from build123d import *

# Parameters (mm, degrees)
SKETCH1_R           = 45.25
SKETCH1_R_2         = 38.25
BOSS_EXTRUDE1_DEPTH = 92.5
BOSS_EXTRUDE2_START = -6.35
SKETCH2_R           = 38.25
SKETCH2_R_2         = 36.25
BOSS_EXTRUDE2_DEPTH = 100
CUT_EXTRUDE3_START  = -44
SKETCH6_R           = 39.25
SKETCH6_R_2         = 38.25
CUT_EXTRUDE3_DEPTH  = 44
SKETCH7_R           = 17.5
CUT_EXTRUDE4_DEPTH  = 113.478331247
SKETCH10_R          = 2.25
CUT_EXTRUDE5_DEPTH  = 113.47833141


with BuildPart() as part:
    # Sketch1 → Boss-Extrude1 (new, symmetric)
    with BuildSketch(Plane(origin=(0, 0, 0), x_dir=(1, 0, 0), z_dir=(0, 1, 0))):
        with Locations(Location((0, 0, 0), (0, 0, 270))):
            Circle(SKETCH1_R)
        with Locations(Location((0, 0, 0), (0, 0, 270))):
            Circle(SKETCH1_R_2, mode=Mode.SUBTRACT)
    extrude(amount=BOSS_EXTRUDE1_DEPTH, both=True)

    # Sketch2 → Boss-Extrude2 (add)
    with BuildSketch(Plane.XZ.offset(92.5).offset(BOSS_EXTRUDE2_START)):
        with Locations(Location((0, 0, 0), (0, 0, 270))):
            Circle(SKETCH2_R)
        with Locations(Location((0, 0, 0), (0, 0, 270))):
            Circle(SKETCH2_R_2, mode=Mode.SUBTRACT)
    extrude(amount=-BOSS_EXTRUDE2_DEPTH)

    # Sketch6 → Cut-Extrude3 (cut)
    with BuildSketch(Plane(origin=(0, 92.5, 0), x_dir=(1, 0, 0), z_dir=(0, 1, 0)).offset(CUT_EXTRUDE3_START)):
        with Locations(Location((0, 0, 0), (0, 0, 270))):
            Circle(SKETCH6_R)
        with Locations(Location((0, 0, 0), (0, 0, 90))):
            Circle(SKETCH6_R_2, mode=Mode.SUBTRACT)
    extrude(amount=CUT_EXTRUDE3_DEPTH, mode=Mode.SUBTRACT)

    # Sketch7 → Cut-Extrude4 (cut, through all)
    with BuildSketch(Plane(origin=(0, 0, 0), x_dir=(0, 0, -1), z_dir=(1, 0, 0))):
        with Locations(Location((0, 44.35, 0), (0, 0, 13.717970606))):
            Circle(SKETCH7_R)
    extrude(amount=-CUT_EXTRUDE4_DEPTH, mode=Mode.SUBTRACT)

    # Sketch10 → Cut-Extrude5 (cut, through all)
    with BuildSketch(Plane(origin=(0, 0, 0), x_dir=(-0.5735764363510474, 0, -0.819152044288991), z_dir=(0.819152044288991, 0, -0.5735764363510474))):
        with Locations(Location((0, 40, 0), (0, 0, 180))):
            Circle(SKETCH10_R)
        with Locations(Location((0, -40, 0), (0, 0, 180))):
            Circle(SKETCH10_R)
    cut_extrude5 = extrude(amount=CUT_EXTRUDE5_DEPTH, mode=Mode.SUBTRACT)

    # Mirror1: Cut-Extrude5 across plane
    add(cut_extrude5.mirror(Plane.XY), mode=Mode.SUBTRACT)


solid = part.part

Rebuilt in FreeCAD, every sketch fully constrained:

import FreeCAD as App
import Part
import Sketcher

V = App.Vector
Q = App.Units.Quantity

doc = App.newDocument("Part")
params = doc.addObject("Spreadsheet::Sheet", "Params")
for row, (alias, value) in enumerate([
    ("sketch1_diameter", "90.5 mm"),
    ("sketch1_diameter2", "76.5 mm"),
    ("pad1_length", "185 mm"),
    ("sketch2_diameter", "76.5 mm"),
    ("sketch2_diameter2", "72.5 mm"),
    ("pad2_length", "100 mm"),
    ("sketch3_diameter", "78.5 mm"),
    ("sketch3_diameter2", "76.5 mm"),
    ("pocket1_length", "44 mm"),
    ("sketch4_diameter", "35 mm"),
    ("sketch5_diameter", "4.5 mm"),
], start=1):
    params.set(f"A{row}", alias)
    params.set(f"B{row}", "=" + value)
    params.setAlias(f"B{row}", alias)

body = doc.addObject("PartDesign::Body", "Body")

sketch1 = doc.addObject("Sketcher::SketchObject", "Sketch")
body.addObject(sketch1)
sketch1.AttachmentSupport = (doc.XZ_Plane, [""])
sketch1.MapMode = "FlatFace"
sketch1.addGeometry(Part.Circle(V(0, 0, 0), V(0, 0, 1), 45), False)
sketch1.addGeometry(Part.Circle(V(0, 0, 0), V(0, 0, 1), 38), False)
sketch1.addConstraint(Sketcher.Constraint("Coincident", 0, 3, -1, 1))
sketch1.addConstraint(Sketcher.Constraint("Coincident", 1, 3, -1, 1))
sketch1.addConstraint(Sketcher.Constraint("Diameter", 0, Q("90.5 mm")))
sketch1.addConstraint(Sketcher.Constraint("Diameter", 1, Q("76.5 mm")))
sketch1.setExpression("Constraints[2]", "Params.sketch1_diameter")
sketch1.setExpression("Constraints[3]", "Params.sketch1_diameter2")
pad1 = doc.addObject("PartDesign::Pad", "Pad")
body.addObject(pad1)
pad1.Profile = sketch1
pad1.setExpression("Length", "Params.pad1_length")
pad1.Midplane = True

sketch2 = doc.addObject("Sketcher::SketchObject", "Sketch001")
body.addObject(sketch2)
sketch2.AttachmentSupport = (doc.XZ_Plane, [""])
sketch2.MapMode = "FlatFace"
sketch2.AttachmentOffset = App.Placement(V(0, 0, 86.15), App.Rotation())
sketch2.addGeometry(Part.Circle(V(0, 0, 0), V(0, 0, 1), 38), False)
sketch2.addGeometry(Part.Circle(V(0, 0, 0), V(0, 0, 1), 36), False)
sketch2.addConstraint(Sketcher.Constraint("Coincident", 0, 3, -1, 1))
sketch2.addConstraint(Sketcher.Constraint("Coincident", 1, 3, -1, 1))
sketch2.addConstraint(Sketcher.Constraint("Diameter", 0, Q("76.5 mm")))
sketch2.addConstraint(Sketcher.Constraint("Diameter", 1, Q("72.5 mm")))
sketch2.setExpression("Constraints[2]", "Params.sketch2_diameter")
sketch2.setExpression("Constraints[3]", "Params.sketch2_diameter2")
pad2 = doc.addObject("PartDesign::Pad", "Pad001")
body.addObject(pad2)
pad2.Profile = sketch2
pad2.setExpression("Length", "Params.pad2_length")
pad2.Reversed = True

sketch3 = doc.addObject("Sketcher::SketchObject", "Sketch002")
body.addObject(sketch3)
sketch3.AttachmentSupport = (doc.XZ_Plane, [""])
sketch3.MapMode = "FlatFace"
sketch3.AttachmentOffset = App.Placement(V(0, 0, -48.5), App.Rotation())
sketch3.addGeometry(Part.Circle(V(0, 0, 0), V(0, 0, 1), 39), False)
sketch3.addGeometry(Part.Circle(V(0, 0, 0), V(0, 0, 1), 38), False)
sketch3.addConstraint(Sketcher.Constraint("Coincident", 0, 3, -1, 1))
sketch3.addConstraint(Sketcher.Constraint("Coincident", 1, 3, -1, 1))
sketch3.addConstraint(Sketcher.Constraint("Diameter", 0, Q("78.5 mm")))
sketch3.addConstraint(Sketcher.Constraint("Diameter", 1, Q("76.5 mm")))
sketch3.setExpression("Constraints[2]", "Params.sketch3_diameter")
sketch3.setExpression("Constraints[3]", "Params.sketch3_diameter2")
pocket1 = doc.addObject("PartDesign::Pocket", "Pocket")
body.addObject(pocket1)
pocket1.Profile = sketch3
pocket1.setExpression("Length", "Params.pocket1_length")

sketch4 = doc.addObject("Sketcher::SketchObject", "Sketch003")
body.addObject(sketch4)
sketch4.AttachmentSupport = (doc.YZ_Plane, [""])
sketch4.MapMode = "FlatFace"
sketch4.addGeometry(Part.Circle(V(44, 0, 0), V(0, 0, 1), 18), False)
sketch4.addConstraint(Sketcher.Constraint("PointOnObject", 0, 3, -1))
sketch4.addConstraint(Sketcher.Constraint("Diameter", 0, Q("35 mm")))
sketch4.addConstraint(Sketcher.Constraint("DistanceX", -1, 1, 0, 3, Q("44.35 mm")))
sketch4.setExpression("Constraints[1]", "Params.sketch4_diameter")
pocket2 = doc.addObject("PartDesign::Pocket", "Pocket001")
body.addObject(pocket2)
pocket2.Profile = sketch4
pocket2.Type = "ThroughAll"

sketch5 = doc.addObject("Sketcher::SketchObject", "Sketch004")
body.addObject(sketch5)
sketch5.Placement = App.Placement(V(0, 0, 0), App.Rotation(V(-0.573576436, 0, -0.819152044), V(0, 0.999999999, 0), V(0.819152044, 0, -0.573576436), "ZXY"))
sketch5.addGeometry(Part.Circle(V(0, 40, 0), V(0, 0, 1), 2.2), False)
sketch5.addGeometry(Part.Circle(V(0, -40, 0), V(0, 0, 1), 2.2), False)
sketch5.addConstraint(Sketcher.Constraint("Equal", 0, 1))
sketch5.addConstraint(Sketcher.Constraint("Symmetric", 0, 3, 1, 3, -1, 1))
sketch5.addConstraint(Sketcher.Constraint("PointOnObject", 0, 3, -2))
sketch5.addConstraint(Sketcher.Constraint("Diameter", 0, Q("4.5 mm")))
sketch5.addConstraint(Sketcher.Constraint("DistanceY", -1, 1, 0, 3, Q("40 mm")))
sketch5.setExpression("Constraints[3]", "Params.sketch5_diameter")
pocket3 = doc.addObject("PartDesign::Pocket", "Pocket002")
body.addObject(pocket3)
pocket3.Profile = sketch5
pocket3.Type = "ThroughAll"
pocket3.Reversed = True
doc.recompute()

mirrored = doc.addObject("PartDesign::Mirrored", "Mirrored")
body.addObject(mirrored)
mirrored.Originals = [pocket3]
mirrored.MirrorPlane = (doc.XY_Plane, [""])
body.Tip = mirrored

doc.recompute()
